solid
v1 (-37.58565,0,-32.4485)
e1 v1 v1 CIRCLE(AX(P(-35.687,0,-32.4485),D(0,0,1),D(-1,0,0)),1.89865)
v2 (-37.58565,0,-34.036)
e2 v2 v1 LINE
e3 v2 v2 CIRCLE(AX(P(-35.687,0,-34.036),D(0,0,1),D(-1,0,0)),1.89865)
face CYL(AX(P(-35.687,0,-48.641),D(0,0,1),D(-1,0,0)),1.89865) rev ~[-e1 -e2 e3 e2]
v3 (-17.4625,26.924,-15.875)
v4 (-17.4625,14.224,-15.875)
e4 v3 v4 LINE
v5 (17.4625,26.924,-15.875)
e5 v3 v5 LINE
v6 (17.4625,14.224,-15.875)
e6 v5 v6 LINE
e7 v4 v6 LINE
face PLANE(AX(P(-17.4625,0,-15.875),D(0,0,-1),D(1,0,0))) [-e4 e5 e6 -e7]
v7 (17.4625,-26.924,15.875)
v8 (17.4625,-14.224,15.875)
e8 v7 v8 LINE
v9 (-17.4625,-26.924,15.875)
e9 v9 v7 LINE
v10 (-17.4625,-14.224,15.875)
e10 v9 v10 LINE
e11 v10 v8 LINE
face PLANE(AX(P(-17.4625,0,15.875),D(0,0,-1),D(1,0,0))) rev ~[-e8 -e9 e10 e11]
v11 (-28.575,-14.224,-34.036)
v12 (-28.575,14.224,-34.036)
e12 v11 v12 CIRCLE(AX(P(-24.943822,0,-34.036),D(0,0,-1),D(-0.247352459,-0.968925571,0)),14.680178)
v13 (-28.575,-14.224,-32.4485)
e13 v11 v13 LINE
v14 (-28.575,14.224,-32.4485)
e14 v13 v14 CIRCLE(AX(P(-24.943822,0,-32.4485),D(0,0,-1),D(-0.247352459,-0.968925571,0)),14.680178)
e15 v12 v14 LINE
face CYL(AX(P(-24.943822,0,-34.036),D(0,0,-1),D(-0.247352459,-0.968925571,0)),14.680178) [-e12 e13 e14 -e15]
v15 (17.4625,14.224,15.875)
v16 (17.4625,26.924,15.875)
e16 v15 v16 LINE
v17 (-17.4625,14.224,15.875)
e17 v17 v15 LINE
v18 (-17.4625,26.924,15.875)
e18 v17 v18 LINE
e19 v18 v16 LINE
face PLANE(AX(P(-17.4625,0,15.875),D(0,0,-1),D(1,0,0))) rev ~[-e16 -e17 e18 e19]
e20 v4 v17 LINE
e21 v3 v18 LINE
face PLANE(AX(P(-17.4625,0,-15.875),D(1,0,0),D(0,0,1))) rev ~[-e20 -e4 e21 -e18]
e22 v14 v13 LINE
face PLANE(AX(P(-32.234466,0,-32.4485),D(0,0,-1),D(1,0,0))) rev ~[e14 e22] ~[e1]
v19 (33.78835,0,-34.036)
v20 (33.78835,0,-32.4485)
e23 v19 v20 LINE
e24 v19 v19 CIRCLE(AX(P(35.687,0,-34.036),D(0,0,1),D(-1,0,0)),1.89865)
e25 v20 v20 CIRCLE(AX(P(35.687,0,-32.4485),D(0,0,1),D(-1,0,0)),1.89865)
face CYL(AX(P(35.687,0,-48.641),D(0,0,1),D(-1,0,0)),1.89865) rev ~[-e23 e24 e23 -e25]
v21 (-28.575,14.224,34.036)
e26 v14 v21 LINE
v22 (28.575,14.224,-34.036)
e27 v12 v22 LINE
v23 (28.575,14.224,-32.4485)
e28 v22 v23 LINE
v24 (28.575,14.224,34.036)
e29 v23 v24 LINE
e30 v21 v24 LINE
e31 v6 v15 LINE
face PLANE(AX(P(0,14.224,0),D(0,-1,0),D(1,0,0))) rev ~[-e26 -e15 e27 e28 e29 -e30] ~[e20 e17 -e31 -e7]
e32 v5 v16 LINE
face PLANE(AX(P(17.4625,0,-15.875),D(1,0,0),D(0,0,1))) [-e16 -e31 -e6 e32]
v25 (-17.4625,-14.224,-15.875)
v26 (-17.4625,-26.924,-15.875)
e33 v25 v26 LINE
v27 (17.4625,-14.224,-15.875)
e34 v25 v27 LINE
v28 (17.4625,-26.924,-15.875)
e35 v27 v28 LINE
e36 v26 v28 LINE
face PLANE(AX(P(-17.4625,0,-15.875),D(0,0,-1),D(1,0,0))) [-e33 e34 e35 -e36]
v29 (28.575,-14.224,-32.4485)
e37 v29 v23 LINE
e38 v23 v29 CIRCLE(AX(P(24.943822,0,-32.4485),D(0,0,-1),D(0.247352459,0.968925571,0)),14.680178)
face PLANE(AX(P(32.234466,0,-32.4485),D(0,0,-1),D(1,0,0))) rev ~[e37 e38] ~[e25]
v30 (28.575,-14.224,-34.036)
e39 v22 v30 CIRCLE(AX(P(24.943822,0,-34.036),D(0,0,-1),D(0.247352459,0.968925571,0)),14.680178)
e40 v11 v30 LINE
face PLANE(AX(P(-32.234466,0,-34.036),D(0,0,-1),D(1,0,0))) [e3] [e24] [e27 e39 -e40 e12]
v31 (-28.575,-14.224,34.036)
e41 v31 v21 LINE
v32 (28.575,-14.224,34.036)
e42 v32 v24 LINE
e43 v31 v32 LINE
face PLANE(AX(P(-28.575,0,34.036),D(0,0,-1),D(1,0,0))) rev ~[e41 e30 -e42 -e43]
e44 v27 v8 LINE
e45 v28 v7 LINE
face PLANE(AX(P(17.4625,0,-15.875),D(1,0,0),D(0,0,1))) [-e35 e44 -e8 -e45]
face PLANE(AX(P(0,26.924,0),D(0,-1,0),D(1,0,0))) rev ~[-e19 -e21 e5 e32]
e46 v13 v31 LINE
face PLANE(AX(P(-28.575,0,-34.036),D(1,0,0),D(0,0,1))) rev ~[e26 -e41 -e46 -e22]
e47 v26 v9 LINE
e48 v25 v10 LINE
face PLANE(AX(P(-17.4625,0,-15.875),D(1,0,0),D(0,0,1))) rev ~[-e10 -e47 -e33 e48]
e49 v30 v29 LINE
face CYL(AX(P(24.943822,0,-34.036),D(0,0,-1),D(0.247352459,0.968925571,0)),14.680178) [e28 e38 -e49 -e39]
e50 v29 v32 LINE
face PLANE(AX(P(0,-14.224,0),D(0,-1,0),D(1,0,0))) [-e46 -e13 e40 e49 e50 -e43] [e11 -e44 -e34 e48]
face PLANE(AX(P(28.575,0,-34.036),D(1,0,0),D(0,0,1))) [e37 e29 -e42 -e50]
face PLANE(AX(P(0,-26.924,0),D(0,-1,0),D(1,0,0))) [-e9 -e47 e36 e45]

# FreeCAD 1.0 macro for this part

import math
import FreeCAD as App
import Part
import Sketcher

V = App.Vector
Q = App.Units.Quantity

doc = App.newDocument("Part")
body = doc.addObject("PartDesign::Body", "Body")

sketch1 = body.newObject("Sketcher::SketchObject", "Sketch")
sketch1.AttachmentSupport = (doc.getObject("XZ_Plane"), [""])
sketch1.MapMode = "FlatFace"
sketch1.addGeometry(Part.LineSegment(V(-28.575, 34.036, 0), V(-28.575, -34.036, 0)), False)
sketch1.addGeometry(Part.LineSegment(V(-28.575, -34.036, 0), V(28.575, -34.036, 0)), False)
sketch1.addGeometry(Part.LineSegment(V(28.575, -34.036, 0), V(28.575, 34.036, 0)), False)
sketch1.addGeometry(Part.LineSegment(V(28.575, 34.036, 0), V(-28.575, 34.036, 0)), False)
sketch1.addConstraint(Sketcher.Constraint("Coincident", 0, 2, 1, 1))
sketch1.addConstraint(Sketcher.Constraint("Coincident", 1, 2, 2, 1))
sketch1.addConstraint(Sketcher.Constraint("Coincident", 2, 2, 3, 1))
sketch1.addConstraint(Sketcher.Constraint("Coincident", 3, 2, 0, 1))
sketch1.addConstraint(Sketcher.Constraint("Vertical", 0))
sketch1.addConstraint(Sketcher.Constraint("Horizontal", 1))
sketch1.addConstraint(Sketcher.Constraint("Vertical", 2))
sketch1.addConstraint(Sketcher.Constraint("Horizontal", 3))
sketch1.addConstraint(Sketcher.Constraint("Symmetric", 0, 2, 2, 2, -1, 1))
sketch1.addConstraint(Sketcher.Constraint("DistanceX", 1, 1, 1, 2, Q("2.25 in")))
sketch1.addConstraint(Sketcher.Constraint("DistanceY", 0, 2, 0, 1, Q("2.68 in")))
pad1 = body.newObject("PartDesign::Pad", "Pad")
pad1.Profile = sketch1
pad1.Length = Q("1.12 in")
pad1.Midplane = True

sketch2 = body.newObject("Sketcher::SketchObject", "Sketch001")
sketch2.AttachmentSupport = (doc.getObject("XZ_Plane"), [""])
sketch2.MapMode = "FlatFace"
sketch2.addGeometry(Part.LineSegment(V(-17.4625, 15.875, 0), V(-17.4625, -15.875, 0)), False)
sketch2.addGeometry(Part.LineSegment(V(-17.4625, -15.875, 0), V(17.4625, -15.875, 0)), False)
sketch2.addGeometry(Part.LineSegment(V(17.4625, -15.875, 0), V(17.4625, 15.875, 0)), False)
sketch2.addGeometry(Part.LineSegment(V(17.4625, 15.875, 0), V(-17.4625, 15.875, 0)), False)
sketch2.addConstraint(Sketcher.Constraint("Coincident", 0, 2, 1, 1))
sketch2.addConstraint(Sketcher.Constraint("Coincident", 1, 2, 2, 1))
sketch2.addConstraint(Sketcher.Constraint("Coincident", 2, 2, 3, 1))
sketch2.addConstraint(Sketcher.Constraint("Coincident", 3, 2, 0, 1))
sketch2.addConstraint(Sketcher.Constraint("Vertical", 0))
sketch2.addConstraint(Sketcher.Constraint("Horizontal", 1))
sketch2.addConstraint(Sketcher.Constraint("Vertical", 2))
sketch2.addConstraint(Sketcher.Constraint("Horizontal", 3))
sketch2.addConstraint(Sketcher.Constraint("Symmetric", 0, 2, 2, 2, -1, 1))
sketch2.addConstraint(Sketcher.Constraint("DistanceY", 0, 2, 0, 1, Q("1.25 in")))
sketch2.addConstraint(Sketcher.Constraint("DistanceX", 1, 1, 1, 2, Q("1.375 in")))
pad2 = body.newObject("PartDesign::Pad", "Pad001")
pad2.Profile = sketch2
pad2.Length = Q("2.12 in")
pad2.Midplane = True

sketch3 = body.newObject("Sketcher::SketchObject", "Sketch002")
sketch3.AttachmentSupport = (doc.getObject("XY_Plane"), [""])
sketch3.MapMode = "FlatFace"
sketch3.AttachmentOffset = App.Placement(V(0, 0, -1.34 * 25.4), App.Rotation())
sketch3.addGeometry(Part.LineSegment(V(-28.575, 14.224, 0), V(-28.575, -14.224, 0)), False)
sketch3.addGeometry(Part.ArcOfCircle(Part.Circle(V(-24.943822, 0, 0), V(0, 0, 1), 14.680178), math.radians(104.320899), math.radians(255.679101)), False)
sketch3.addGeometry(Part.ArcOfCircle(Part.Circle(V(24.943822, 0, 0), V(0, 0, 1), 14.680178), math.radians(-75.679101), math.radians(75.679101)), False)
sketch3.addGeometry(Part.LineSegment(V(28.575, -14.224, 0), V(28.575, 14.224, 0)), False)
sketch3.addConstraint(Sketcher.Constraint("Coincident", 0, 1, 1, 1))
sketch3.addConstraint(Sketcher.Constraint("Coincident", 1, 2, 0, 2))
sketch3.addConstraint(Sketcher.Constraint("Coincident", 2, 1, 3, 1))
sketch3.addConstraint(Sketcher.Constraint("Coincident", 3, 2, 2, 2))
sketch3.addConstraint(Sketcher.Constraint("Vertical", 0))
sketch3.addConstraint(Sketcher.Constraint("Vertical", 3))
sketch3.addConstraint(Sketcher.Constraint("Equal", 1, 2))
sketch3.addConstraint(Sketcher.Constraint("Symmetric", 1, 3, 2, 3, -1, 1))
sketch3.addConstraint(Sketcher.Constraint("Symmetric", 1, 2, 2, 1, -2))
sketch3.addConstraint(Sketcher.Constraint("DistanceY", 0, 2, 0, 1, Q("1.12 in")))
sketch3.addConstraint(Sketcher.Constraint("DistanceX", 1, 2, 2, 1, Q("2.25 in")))
sketch3.addConstraint(Sketcher.Constraint("Radius", 1, 14.680178))
pad3 = body.newObject("PartDesign::Pad", "Pad002")
pad3.Profile = sketch3
pad3.Length = Q("0.0625 in")

sketch4 = body.newObject("Sketcher::SketchObject", "Sketch003")
sketch4.AttachmentSupport = (doc.getObject("XY_Plane"), [""])
sketch4.MapMode = "FlatFace"
sketch4.AttachmentOffset = App.Placement(V(0, 0, -1.34 * 25.4), App.Rotation())
sketch4.addGeometry(Part.Circle(V(-35.687, 0, 0), V(0, 0, 1), 1.89865), False)
sketch4.addGeometry(Part.Circle(V(35.687, 0, 0), V(0, 0, 1), 1.89865), False)
sketch4.addConstraint(Sketcher.Constraint("Equal", 0, 1))
sketch4.addConstraint(Sketcher.Constraint("Symmetric", 0, 3, 1, 3, -1, 1))
sketch4.addConstraint(Sketcher.Constraint("PointOnObject", 0, 3, -1))
sketch4.addConstraint(Sketcher.Constraint("Diameter", 0, Q("0.1495 in")))
sketch4.addConstraint(Sketcher.Constraint("DistanceX", 0, 3, 1, 3, Q("2.81 in")))
doc.recompute()
hole = body.newObject("PartDesign::Hole", "Hole")
hole.Profile = sketch4
hole.ThreadType = "None"
hole.Diameter = Q("0.1495 in")
hole.DepthType = "Dimension"
hole.Depth = Q("0.575 in")
hole.DrillPoint = "Angled"
hole.DrillPointAngle = 118
hole.Reversed = True

doc.recompute()
